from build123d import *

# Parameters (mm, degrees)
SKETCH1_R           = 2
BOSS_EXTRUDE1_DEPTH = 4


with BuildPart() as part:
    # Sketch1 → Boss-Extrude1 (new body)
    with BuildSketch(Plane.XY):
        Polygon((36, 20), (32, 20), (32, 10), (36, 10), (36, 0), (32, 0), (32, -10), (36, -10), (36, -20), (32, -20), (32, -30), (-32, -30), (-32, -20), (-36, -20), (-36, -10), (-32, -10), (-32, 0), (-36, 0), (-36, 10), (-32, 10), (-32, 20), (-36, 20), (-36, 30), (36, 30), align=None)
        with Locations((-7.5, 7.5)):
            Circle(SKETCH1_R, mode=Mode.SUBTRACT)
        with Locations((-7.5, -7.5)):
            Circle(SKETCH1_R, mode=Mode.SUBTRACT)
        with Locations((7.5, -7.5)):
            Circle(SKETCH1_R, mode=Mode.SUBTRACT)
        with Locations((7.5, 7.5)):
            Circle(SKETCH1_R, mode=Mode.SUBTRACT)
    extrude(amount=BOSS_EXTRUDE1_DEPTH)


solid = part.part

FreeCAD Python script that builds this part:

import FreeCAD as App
import Part
import Sketcher
from FreeCAD import Vector

doc = App.newDocument("Part")
body = doc.addObject("PartDesign::Body", "Body")

# Sketch on XY plane
sketch1 = doc.addObject("Sketcher::SketchObject", "Sketch")
body.addObject(sketch1)
sketch1.AttachmentSupport = (doc.XY_Plane, [""])
sketch1.MapMode = "FlatFace"
sketch1.addGeometry([
    Part.LineSegment(Vector(32, 20, 0), Vector(36, 20, 0)),  # 0
    Part.LineSegment(Vector(36, 20, 0), Vector(36, 30, 0)),  # 1
    Part.LineSegment(Vector(36, 30, 0), Vector(-36, 30, 0)),  # 2
    Part.LineSegment(Vector(-36, 30, 0), Vector(-36, 20, 0)),  # 3
    Part.LineSegment(Vector(-36, 20, 0), Vector(-32, 20, 0)),  # 4
    Part.LineSegment(Vector(-32, 20, 0), Vector(-32, 10, 0)),  # 5
    Part.LineSegment(Vector(-32, 10, 0), Vector(-36, 10, 0)),  # 6
    Part.LineSegment(Vector(-36, 10, 0), Vector(-36, 0, 0)),  # 7
    Part.LineSegment(Vector(-36, 0, 0), Vector(-32, 0, 0)),  # 8
    Part.LineSegment(Vector(-32, 0, 0), Vector(-32, -10, 0)),  # 9
    Part.LineSegment(Vector(-32, -10, 0), Vector(-36, -10, 0)),  # 10
    Part.LineSegment(Vector(-36, -10, 0), Vector(-36, -20, 0)),  # 11
    Part.LineSegment(Vector(-36, -20, 0), Vector(-32, -20, 0)),  # 12
    Part.LineSegment(Vector(-32, -20, 0), Vector(-32, -30, 0)),  # 13
    Part.LineSegment(Vector(-32, -30, 0), Vector(32, -30, 0)),  # 14
    Part.LineSegment(Vector(32, -30, 0), Vector(32, -20, 0)),  # 15
    Part.LineSegment(Vector(32, -20, 0), Vector(36, -20, 0)),  # 16
    Part.LineSegment(Vector(36, -20, 0), Vector(36, -10, 0)),  # 17
    Part.LineSegment(Vector(36, -10, 0), Vector(32, -10, 0)),  # 18
    Part.LineSegment(Vector(32, -10, 0), Vector(32, 0, 0)),  # 19
    Part.LineSegment(Vector(32, 0, 0), Vector(36, 0, 0)),  # 20
    Part.LineSegment(Vector(36, 0, 0), Vector(36, 10, 0)),  # 21
    Part.LineSegment(Vector(36, 10, 0), Vector(32, 10, 0)),  # 22
    Part.LineSegment(Vector(32, 10, 0), Vector(32, 20, 0)),  # 23
    Part.Circle(Vector(7.5, -7.5, 0), Vector(0, 0, 1), 2),  # 24
    Part.Circle(Vector(-7.5, -7.5, 0), Vector(0, 0, 1), 2),  # 25
    Part.Circle(Vector(7.5, 7.5, 0), Vector(0, 0, 1), 2),  # 26
    Part.Circle(Vector(-7.5, 7.5, 0), Vector(0, 0, 1), 2),  # 27
], False)
sketch1.addConstraint([
    Sketcher.Constraint("Coincident", 0, 2, 1, 1),
    Sketcher.Constraint("Coincident", 1, 2, 2, 1),
    Sketcher.Constraint("Coincident", 2, 2, 3, 1),
    Sketcher.Constraint("Coincident", 3, 2, 4, 1),
    Sketcher.Constraint("Coincident", 4, 2, 5, 1),
    Sketcher.Constraint("Coincident", 5, 2, 6, 1),
    Sketcher.Constraint("Coincident", 6, 2, 7, 1),
    Sketcher.Constraint("Coincident", 7, 2, 8, 1),
    Sketcher.Constraint("Coincident", 8, 2, 9, 1),
    Sketcher.Constraint("Coincident", 9, 2, 10, 1),
    Sketcher.Constraint("Coincident", 10, 2, 11, 1),
    Sketcher.Constraint("Coincident", 11, 2, 12, 1),
    Sketcher.Constraint("Coincident", 12, 2, 13, 1),
    Sketcher.Constraint("Coincident", 13, 2, 14, 1),
    Sketcher.Constraint("Coincident", 14, 2, 15, 1),
    Sketcher.Constraint("Coincident", 15, 2, 16, 1),
    Sketcher.Constraint("Coincident", 16, 2, 17, 1),
    Sketcher.Constraint("Coincident", 17, 2, 18, 1),
    Sketcher.Constraint("Coincident", 18, 2, 19, 1),
    Sketcher.Constraint("Coincident", 19, 2, 20, 1),
    Sketcher.Constraint("Coincident", 20, 2, 21, 1),
    Sketcher.Constraint("Coincident", 21, 2, 22, 1),
    Sketcher.Constraint("Coincident", 22, 2, 23, 1),
    Sketcher.Constraint("Coincident", 23, 2, 0, 1),
    Sketcher.Constraint("Horizontal", 0),
    Sketcher.Constraint("Vertical", 1),
    Sketcher.Constraint("Horizontal", 2),
    Sketcher.Constraint("Vertical", 3),
    Sketcher.Constraint("Horizontal", 4),
    Sketcher.Constraint("Vertical", 5),
    Sketcher.Constraint("Horizontal", 6),
    Sketcher.Constraint("Vertical", 7),
    Sketcher.Constraint("Horizontal", 8),
    Sketcher.Constraint("Vertical", 9),
    Sketcher.Constraint("Horizontal", 10),
    Sketcher.Constraint("Vertical", 11),
    Sketcher.Constraint("Horizontal", 12),
    Sketcher.Constraint("Vertical", 13),
    Sketcher.Constraint("Horizontal", 14),
    Sketcher.Constraint("Vertical", 15),
    Sketcher.Constraint("Horizontal", 16),
    Sketcher.Constraint("Vertical", 17),
    Sketcher.Constraint("Horizontal", 18),
    Sketcher.Constraint("Vertical", 19),
    Sketcher.Constraint("Horizontal", 20),
    Sketcher.Constraint("Vertical", 21),
    Sketcher.Constraint("Horizontal", 22),
    Sketcher.Constraint("Vertical", 23),
    Sketcher.Constraint("Equal", 24, 25),
    Sketcher.Constraint("Equal", 25, 26),
    Sketcher.Constraint("Equal", 26, 27),
    Sketcher.Constraint("Symmetric", 25, 3, 26, 3, -1, 1),
    Sketcher.Constraint("Symmetric", 24, 3, 27, 3, -1, 1),
    Sketcher.Constraint("Symmetric", 0, 2, 11, 2, -1, 1),
    Sketcher.Constraint("Symmetric", 4, 2, 15, 2, -1, 1),
    Sketcher.Constraint("Symmetric", 6, 2, 17, 2, -1, 1),
    Sketcher.Constraint("Symmetric", 8, 2, 19, 2, -1, 1),
    Sketcher.Constraint("Symmetric", 10, 2, 21, 2, -1, 1),
    Sketcher.Constraint("Symmetric", 24, 3, 25, 3, -2),
    Sketcher.Constraint("Symmetric", 0, 2, 3, 2, -2),
    Sketcher.Constraint("Symmetric", 10, 2, 17, 2, -2),
    Sketcher.Constraint("PointOnObject", 7, 2, -1),
    Sketcher.Constraint("Vertical", 5, 2, 8, 2),
    Sketcher.Constraint("Vertical", 9, 2, 12, 2),
    Sketcher.Constraint("Vertical", 19, 2, 22, 2),
    Sketcher.Constraint("Equal", 3, 5),
    Sketcher.Constraint("Equal", 5, 7),
    Sketcher.Constraint("Equal", 11, 13),
    Sketcher.Constraint("Diameter", 24, 4.0),
    Sketcher.Constraint("DistanceX", 0, 1, 0, 2, 4.0),
    Sketcher.Constraint("DistanceX", 2, 2, 2, 1, 72.0),
    Sketcher.Constraint("DistanceY", 1, 1, 1, 2, 10.0),
    Sketcher.Constraint("DistanceX", 25, 3, 24, 3, 15.0),
    Sketcher.Constraint("DistanceY", 24, 3, 26, 3, 15.0),
])
pad1 = doc.addObject("PartDesign::Pad", "Pad")
body.addObject(pad1)
pad1.Profile = sketch1
pad1.Length = 4

doc.recompute()
